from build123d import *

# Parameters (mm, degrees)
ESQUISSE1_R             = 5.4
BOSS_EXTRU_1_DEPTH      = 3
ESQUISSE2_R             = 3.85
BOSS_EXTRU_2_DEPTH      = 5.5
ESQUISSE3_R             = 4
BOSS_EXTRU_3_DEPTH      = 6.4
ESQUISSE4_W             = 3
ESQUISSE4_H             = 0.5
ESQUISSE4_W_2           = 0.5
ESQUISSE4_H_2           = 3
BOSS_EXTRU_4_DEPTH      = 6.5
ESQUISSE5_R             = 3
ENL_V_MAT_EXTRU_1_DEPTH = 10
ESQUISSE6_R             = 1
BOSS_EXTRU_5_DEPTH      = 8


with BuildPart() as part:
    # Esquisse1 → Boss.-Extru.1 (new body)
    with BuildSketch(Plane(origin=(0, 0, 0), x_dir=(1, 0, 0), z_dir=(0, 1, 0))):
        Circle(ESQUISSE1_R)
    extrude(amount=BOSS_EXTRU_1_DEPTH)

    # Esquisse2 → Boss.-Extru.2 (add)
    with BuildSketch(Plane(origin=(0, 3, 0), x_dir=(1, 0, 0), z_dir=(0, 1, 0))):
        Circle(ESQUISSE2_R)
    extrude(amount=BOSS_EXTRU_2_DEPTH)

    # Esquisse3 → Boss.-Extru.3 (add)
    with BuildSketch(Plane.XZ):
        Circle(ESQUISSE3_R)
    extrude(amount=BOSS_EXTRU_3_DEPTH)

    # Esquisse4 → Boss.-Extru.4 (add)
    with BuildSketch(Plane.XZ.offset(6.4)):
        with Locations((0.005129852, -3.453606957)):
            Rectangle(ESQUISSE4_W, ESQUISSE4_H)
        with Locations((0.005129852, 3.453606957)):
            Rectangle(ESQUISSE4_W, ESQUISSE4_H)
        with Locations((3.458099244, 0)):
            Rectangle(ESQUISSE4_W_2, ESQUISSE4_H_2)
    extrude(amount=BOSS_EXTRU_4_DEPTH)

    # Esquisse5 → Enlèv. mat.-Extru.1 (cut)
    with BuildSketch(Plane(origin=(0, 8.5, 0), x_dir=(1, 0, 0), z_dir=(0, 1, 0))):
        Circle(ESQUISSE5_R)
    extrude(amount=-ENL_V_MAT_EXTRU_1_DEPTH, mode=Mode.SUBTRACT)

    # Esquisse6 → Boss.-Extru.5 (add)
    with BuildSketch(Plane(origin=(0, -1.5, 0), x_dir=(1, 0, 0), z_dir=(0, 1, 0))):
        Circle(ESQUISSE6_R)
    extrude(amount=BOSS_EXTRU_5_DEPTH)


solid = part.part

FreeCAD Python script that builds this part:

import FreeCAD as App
import Part
import Sketcher


def add_polygon(sketch, points):
    """Adds a closed chain of lines whose ends are joined by coincident constraints."""
    first, n = sketch.GeometryCount, len(points)
    for a, b in zip(points, points[1:] + points[:1]):
        sketch.addGeometry(Part.LineSegment(App.Vector(*a, 0), App.Vector(*b, 0)), False)
    for i in range(n):
        sketch.addConstraint(Sketcher.Constraint("Coincident", first + i, 2, first + (i + 1) % n, 1))

doc = App.newDocument("Part")
params = doc.addObject("Spreadsheet::Sheet", "Params")
for row, (alias, value) in enumerate([
    ("sketch1_diameter", "10.8 mm"),
    ("pad1_length", "3 mm"),
    ("sketch2_diameter", "7.7 mm"),
    ("pad2_length", "5.5 mm"),
    ("sketch3_diameter", "8 mm"),
    ("pad3_length", "6.4 mm"),
    ("sketch4_width", "3 mm"),
    ("sketch4_width2", "0.5 mm"),
    ("pad4_length", "6.5 mm"),
    ("sketch5_diameter", "6 mm"),
    ("pocket1_length", "10 mm"),
    ("sketch6_diameter", "2 mm"),
    ("pad5_length", "8 mm"),
], start=1):
    params.set(f"A{row}", alias)
    params.set(f"B{row}", "=" + value)
    params.setAlias(f"B{row}", alias)

body = doc.addObject("PartDesign::Body", "Body")

# Sketch on XZ plane
sketch1 = body.newObject("Sketcher::SketchObject", "Sketch")
sketch1.AttachmentSupport = (doc.getObject("XZ_Plane"), [""])
sketch1.MapMode = "FlatFace"
sketch1.addGeometry(Part.Circle(App.Vector(0, 0, 0), App.Vector(0, 0, 1), 5), False)
sketch1.addConstraint(Sketcher.Constraint("Coincident", 0, 3, -1, 1))
sketch1.addConstraint(Sketcher.Constraint("Diameter", 0, 10.8))
sketch1.setExpression("Constraints[1]", "Params.sketch1_diameter")
pad1 = body.newObject("PartDesign::Pad", "Pad")
pad1.Profile = sketch1
pad1.setExpression("Length", "Params.pad1_length")
pad1.Reversed = True

# Sketch on XZ plane
sketch2 = body.newObject("Sketcher::SketchObject", "Sketch001")
sketch2.AttachmentSupport = (doc.getObject("XZ_Plane"), [""])
sketch2.MapMode = "FlatFace"
sketch2.AttachmentOffset = App.Placement(App.Vector(0, 0, -3), App.Rotation())
sketch2.addGeometry(Part.Circle(App.Vector(0, 0, 0), App.Vector(0, 0, 1), 3.9), False)
sketch2.addConstraint(Sketcher.Constraint("Coincident", 0, 3, -1, 1))
sketch2.addConstraint(Sketcher.Constraint("Diameter", 0, 7.7))
sketch2.setExpression("Constraints[1]", "Params.sketch2_diameter")
pad2 = body.newObject("PartDesign::Pad", "Pad001")
pad2.Profile = sketch2
pad2.setExpression("Length", "Params.pad2_length")
pad2.Reversed = True

# Sketch on XZ plane
sketch3 = body.newObject("Sketcher::SketchObject", "Sketch002")
sketch3.AttachmentSupport = (doc.getObject("XZ_Plane"), [""])
sketch3.MapMode = "FlatFace"
sketch3.addGeometry(Part.Circle(App.Vector(0, 0, 0), App.Vector(0, 0, 1), 4), False)
sketch3.addConstraint(Sketcher.Constraint("Coincident", 0, 3, -1, 1))
sketch3.addConstraint(Sketcher.Constraint("Diameter", 0, 8.0))
sketch3.setExpression("Constraints[1]", "Params.sketch3_diameter")
pad3 = body.newObject("PartDesign::Pad", "Pad002")
pad3.Profile = sketch3
pad3.setExpression("Length", "Params.pad3_length")

# Sketch on XZ plane
sketch4 = body.newObject("Sketcher::SketchObject", "Sketch003")
sketch4.AttachmentSupport = (doc.getObject("XZ_Plane"), [""])
sketch4.MapMode = "FlatFace"
sketch4.AttachmentOffset = App.Placement(App.Vector(0, 0, 6.4), App.Rotation())
add_polygon(sketch4, [(-1.5, -3.2), (-1.5, -3.7), (1.5, -3.7), (1.5, -3.2)])  # lines 0-3
add_polygon(sketch4, [(-1.5, 3.7), (-1.5, 3.2), (1.5, 3.2), (1.5, 3.7)])  # lines 4-7
add_polygon(sketch4, [(3.2, 1.5), (3.2, -1.5), (3.7, -1.5), (3.7, 1.5)])  # lines 8-11
sketch4.addConstraint(Sketcher.Constraint("Vertical", 0))
sketch4.addConstraint(Sketcher.Constraint("Horizontal", 1))
sketch4.addConstraint(Sketcher.Constraint("Vertical", 2))
sketch4.addConstraint(Sketcher.Constraint("Horizontal", 3))
sketch4.addConstraint(Sketcher.Constraint("Vertical", 4))
sketch4.addConstraint(Sketcher.Constraint("Horizontal", 5))
sketch4.addConstraint(Sketcher.Constraint("Vertical", 6))
sketch4.addConstraint(Sketcher.Constraint("Horizontal", 7))
sketch4.addConstraint(Sketcher.Constraint("Vertical", 8))
sketch4.addConstraint(Sketcher.Constraint("Horizontal", 9))
sketch4.addConstraint(Sketcher.Constraint("Vertical", 10))
sketch4.addConstraint(Sketcher.Constraint("Horizontal", 11))
sketch4.addConstraint(Sketcher.Constraint("Symmetric", 3, 2, 4, 2, -1))
sketch4.addConstraint(Sketcher.Constraint("Symmetric", 1, 2, 6, 2, -1))
sketch4.addConstraint(Sketcher.Constraint("Equal", 11, 0))
sketch4.addConstraint(Sketcher.Constraint("Equal", 7, 8))
sketch4.addConstraint(Sketcher.Constraint("DistanceX", 1, 1, 1, 2, 3.0))
sketch4.addConstraint(Sketcher.Constraint("DistanceX", 9, 1, 9, 2, 0.5))
sketch4.addConstraint(Sketcher.Constraint("DistanceY", 8, 2, -1, 1, 1.5))
sketch4.addConstraint(Sketcher.Constraint("DistanceX", -1, 1, 8, 2, 3.208099))
sketch4.addConstraint(Sketcher.Constraint("DistanceX", 0, 2, -1, 1, 1.49487))
sketch4.addConstraint(Sketcher.Constraint("DistanceY", 0, 2, -1, 1, 3.703607))
sketch4.setExpression("Constraints[28]", "Params.sketch4_width")
sketch4.setExpression("Constraints[29]", "Params.sketch4_width2")
pad4 = body.newObject("PartDesign::Pad", "Pad003")
pad4.Profile = sketch4
pad4.setExpression("Length", "Params.pad4_length")

# Sketch on XZ plane
sketch5 = body.newObject("Sketcher::SketchObject", "Sketch004")
sketch5.AttachmentSupport = (doc.getObject("XZ_Plane"), [""])
sketch5.MapMode = "FlatFace"
sketch5.AttachmentOffset = App.Placement(App.Vector(0, 0, -8.5), App.Rotation())
sketch5.addGeometry(Part.Circle(App.Vector(0, 0, 0), App.Vector(0, 0, 1), 3), False)
sketch5.addConstraint(Sketcher.Constraint("Coincident", 0, 3, -1, 1))
sketch5.addConstraint(Sketcher.Constraint("Diameter", 0, 6.0))
sketch5.setExpression("Constraints[1]", "Params.sketch5_diameter")
pocket1 = body.newObject("PartDesign::Pocket", "Pocket")
pocket1.Profile = sketch5
pocket1.setExpression("Length", "Params.pocket1_length")
pocket1.Reversed = True

# Sketch on XZ plane
sketch6 = body.newObject("Sketcher::SketchObject", "Sketch005")
sketch6.AttachmentSupport = (doc.getObject("XZ_Plane"), [""])
sketch6.MapMode = "FlatFace"
sketch6.AttachmentOffset = App.Placement(App.Vector(0, 0, 1.5), App.Rotation())
sketch6.addGeometry(Part.Circle(App.Vector(0, 0, 0), App.Vector(0, 0, 1), 1), False)
sketch6.addConstraint(Sketcher.Constraint("Coincident", 0, 3, -1, 1))
sketch6.addConstraint(Sketcher.Constraint("Diameter", 0, 2.0))
sketch6.setExpression("Constraints[1]", "Params.sketch6_diameter")
pad5 = body.newObject("PartDesign::Pad", "Pad004")
pad5.Profile = sketch6
pad5.setExpression("Length", "Params.pad5_length")
pad5.Reversed = True

doc.recompute()
